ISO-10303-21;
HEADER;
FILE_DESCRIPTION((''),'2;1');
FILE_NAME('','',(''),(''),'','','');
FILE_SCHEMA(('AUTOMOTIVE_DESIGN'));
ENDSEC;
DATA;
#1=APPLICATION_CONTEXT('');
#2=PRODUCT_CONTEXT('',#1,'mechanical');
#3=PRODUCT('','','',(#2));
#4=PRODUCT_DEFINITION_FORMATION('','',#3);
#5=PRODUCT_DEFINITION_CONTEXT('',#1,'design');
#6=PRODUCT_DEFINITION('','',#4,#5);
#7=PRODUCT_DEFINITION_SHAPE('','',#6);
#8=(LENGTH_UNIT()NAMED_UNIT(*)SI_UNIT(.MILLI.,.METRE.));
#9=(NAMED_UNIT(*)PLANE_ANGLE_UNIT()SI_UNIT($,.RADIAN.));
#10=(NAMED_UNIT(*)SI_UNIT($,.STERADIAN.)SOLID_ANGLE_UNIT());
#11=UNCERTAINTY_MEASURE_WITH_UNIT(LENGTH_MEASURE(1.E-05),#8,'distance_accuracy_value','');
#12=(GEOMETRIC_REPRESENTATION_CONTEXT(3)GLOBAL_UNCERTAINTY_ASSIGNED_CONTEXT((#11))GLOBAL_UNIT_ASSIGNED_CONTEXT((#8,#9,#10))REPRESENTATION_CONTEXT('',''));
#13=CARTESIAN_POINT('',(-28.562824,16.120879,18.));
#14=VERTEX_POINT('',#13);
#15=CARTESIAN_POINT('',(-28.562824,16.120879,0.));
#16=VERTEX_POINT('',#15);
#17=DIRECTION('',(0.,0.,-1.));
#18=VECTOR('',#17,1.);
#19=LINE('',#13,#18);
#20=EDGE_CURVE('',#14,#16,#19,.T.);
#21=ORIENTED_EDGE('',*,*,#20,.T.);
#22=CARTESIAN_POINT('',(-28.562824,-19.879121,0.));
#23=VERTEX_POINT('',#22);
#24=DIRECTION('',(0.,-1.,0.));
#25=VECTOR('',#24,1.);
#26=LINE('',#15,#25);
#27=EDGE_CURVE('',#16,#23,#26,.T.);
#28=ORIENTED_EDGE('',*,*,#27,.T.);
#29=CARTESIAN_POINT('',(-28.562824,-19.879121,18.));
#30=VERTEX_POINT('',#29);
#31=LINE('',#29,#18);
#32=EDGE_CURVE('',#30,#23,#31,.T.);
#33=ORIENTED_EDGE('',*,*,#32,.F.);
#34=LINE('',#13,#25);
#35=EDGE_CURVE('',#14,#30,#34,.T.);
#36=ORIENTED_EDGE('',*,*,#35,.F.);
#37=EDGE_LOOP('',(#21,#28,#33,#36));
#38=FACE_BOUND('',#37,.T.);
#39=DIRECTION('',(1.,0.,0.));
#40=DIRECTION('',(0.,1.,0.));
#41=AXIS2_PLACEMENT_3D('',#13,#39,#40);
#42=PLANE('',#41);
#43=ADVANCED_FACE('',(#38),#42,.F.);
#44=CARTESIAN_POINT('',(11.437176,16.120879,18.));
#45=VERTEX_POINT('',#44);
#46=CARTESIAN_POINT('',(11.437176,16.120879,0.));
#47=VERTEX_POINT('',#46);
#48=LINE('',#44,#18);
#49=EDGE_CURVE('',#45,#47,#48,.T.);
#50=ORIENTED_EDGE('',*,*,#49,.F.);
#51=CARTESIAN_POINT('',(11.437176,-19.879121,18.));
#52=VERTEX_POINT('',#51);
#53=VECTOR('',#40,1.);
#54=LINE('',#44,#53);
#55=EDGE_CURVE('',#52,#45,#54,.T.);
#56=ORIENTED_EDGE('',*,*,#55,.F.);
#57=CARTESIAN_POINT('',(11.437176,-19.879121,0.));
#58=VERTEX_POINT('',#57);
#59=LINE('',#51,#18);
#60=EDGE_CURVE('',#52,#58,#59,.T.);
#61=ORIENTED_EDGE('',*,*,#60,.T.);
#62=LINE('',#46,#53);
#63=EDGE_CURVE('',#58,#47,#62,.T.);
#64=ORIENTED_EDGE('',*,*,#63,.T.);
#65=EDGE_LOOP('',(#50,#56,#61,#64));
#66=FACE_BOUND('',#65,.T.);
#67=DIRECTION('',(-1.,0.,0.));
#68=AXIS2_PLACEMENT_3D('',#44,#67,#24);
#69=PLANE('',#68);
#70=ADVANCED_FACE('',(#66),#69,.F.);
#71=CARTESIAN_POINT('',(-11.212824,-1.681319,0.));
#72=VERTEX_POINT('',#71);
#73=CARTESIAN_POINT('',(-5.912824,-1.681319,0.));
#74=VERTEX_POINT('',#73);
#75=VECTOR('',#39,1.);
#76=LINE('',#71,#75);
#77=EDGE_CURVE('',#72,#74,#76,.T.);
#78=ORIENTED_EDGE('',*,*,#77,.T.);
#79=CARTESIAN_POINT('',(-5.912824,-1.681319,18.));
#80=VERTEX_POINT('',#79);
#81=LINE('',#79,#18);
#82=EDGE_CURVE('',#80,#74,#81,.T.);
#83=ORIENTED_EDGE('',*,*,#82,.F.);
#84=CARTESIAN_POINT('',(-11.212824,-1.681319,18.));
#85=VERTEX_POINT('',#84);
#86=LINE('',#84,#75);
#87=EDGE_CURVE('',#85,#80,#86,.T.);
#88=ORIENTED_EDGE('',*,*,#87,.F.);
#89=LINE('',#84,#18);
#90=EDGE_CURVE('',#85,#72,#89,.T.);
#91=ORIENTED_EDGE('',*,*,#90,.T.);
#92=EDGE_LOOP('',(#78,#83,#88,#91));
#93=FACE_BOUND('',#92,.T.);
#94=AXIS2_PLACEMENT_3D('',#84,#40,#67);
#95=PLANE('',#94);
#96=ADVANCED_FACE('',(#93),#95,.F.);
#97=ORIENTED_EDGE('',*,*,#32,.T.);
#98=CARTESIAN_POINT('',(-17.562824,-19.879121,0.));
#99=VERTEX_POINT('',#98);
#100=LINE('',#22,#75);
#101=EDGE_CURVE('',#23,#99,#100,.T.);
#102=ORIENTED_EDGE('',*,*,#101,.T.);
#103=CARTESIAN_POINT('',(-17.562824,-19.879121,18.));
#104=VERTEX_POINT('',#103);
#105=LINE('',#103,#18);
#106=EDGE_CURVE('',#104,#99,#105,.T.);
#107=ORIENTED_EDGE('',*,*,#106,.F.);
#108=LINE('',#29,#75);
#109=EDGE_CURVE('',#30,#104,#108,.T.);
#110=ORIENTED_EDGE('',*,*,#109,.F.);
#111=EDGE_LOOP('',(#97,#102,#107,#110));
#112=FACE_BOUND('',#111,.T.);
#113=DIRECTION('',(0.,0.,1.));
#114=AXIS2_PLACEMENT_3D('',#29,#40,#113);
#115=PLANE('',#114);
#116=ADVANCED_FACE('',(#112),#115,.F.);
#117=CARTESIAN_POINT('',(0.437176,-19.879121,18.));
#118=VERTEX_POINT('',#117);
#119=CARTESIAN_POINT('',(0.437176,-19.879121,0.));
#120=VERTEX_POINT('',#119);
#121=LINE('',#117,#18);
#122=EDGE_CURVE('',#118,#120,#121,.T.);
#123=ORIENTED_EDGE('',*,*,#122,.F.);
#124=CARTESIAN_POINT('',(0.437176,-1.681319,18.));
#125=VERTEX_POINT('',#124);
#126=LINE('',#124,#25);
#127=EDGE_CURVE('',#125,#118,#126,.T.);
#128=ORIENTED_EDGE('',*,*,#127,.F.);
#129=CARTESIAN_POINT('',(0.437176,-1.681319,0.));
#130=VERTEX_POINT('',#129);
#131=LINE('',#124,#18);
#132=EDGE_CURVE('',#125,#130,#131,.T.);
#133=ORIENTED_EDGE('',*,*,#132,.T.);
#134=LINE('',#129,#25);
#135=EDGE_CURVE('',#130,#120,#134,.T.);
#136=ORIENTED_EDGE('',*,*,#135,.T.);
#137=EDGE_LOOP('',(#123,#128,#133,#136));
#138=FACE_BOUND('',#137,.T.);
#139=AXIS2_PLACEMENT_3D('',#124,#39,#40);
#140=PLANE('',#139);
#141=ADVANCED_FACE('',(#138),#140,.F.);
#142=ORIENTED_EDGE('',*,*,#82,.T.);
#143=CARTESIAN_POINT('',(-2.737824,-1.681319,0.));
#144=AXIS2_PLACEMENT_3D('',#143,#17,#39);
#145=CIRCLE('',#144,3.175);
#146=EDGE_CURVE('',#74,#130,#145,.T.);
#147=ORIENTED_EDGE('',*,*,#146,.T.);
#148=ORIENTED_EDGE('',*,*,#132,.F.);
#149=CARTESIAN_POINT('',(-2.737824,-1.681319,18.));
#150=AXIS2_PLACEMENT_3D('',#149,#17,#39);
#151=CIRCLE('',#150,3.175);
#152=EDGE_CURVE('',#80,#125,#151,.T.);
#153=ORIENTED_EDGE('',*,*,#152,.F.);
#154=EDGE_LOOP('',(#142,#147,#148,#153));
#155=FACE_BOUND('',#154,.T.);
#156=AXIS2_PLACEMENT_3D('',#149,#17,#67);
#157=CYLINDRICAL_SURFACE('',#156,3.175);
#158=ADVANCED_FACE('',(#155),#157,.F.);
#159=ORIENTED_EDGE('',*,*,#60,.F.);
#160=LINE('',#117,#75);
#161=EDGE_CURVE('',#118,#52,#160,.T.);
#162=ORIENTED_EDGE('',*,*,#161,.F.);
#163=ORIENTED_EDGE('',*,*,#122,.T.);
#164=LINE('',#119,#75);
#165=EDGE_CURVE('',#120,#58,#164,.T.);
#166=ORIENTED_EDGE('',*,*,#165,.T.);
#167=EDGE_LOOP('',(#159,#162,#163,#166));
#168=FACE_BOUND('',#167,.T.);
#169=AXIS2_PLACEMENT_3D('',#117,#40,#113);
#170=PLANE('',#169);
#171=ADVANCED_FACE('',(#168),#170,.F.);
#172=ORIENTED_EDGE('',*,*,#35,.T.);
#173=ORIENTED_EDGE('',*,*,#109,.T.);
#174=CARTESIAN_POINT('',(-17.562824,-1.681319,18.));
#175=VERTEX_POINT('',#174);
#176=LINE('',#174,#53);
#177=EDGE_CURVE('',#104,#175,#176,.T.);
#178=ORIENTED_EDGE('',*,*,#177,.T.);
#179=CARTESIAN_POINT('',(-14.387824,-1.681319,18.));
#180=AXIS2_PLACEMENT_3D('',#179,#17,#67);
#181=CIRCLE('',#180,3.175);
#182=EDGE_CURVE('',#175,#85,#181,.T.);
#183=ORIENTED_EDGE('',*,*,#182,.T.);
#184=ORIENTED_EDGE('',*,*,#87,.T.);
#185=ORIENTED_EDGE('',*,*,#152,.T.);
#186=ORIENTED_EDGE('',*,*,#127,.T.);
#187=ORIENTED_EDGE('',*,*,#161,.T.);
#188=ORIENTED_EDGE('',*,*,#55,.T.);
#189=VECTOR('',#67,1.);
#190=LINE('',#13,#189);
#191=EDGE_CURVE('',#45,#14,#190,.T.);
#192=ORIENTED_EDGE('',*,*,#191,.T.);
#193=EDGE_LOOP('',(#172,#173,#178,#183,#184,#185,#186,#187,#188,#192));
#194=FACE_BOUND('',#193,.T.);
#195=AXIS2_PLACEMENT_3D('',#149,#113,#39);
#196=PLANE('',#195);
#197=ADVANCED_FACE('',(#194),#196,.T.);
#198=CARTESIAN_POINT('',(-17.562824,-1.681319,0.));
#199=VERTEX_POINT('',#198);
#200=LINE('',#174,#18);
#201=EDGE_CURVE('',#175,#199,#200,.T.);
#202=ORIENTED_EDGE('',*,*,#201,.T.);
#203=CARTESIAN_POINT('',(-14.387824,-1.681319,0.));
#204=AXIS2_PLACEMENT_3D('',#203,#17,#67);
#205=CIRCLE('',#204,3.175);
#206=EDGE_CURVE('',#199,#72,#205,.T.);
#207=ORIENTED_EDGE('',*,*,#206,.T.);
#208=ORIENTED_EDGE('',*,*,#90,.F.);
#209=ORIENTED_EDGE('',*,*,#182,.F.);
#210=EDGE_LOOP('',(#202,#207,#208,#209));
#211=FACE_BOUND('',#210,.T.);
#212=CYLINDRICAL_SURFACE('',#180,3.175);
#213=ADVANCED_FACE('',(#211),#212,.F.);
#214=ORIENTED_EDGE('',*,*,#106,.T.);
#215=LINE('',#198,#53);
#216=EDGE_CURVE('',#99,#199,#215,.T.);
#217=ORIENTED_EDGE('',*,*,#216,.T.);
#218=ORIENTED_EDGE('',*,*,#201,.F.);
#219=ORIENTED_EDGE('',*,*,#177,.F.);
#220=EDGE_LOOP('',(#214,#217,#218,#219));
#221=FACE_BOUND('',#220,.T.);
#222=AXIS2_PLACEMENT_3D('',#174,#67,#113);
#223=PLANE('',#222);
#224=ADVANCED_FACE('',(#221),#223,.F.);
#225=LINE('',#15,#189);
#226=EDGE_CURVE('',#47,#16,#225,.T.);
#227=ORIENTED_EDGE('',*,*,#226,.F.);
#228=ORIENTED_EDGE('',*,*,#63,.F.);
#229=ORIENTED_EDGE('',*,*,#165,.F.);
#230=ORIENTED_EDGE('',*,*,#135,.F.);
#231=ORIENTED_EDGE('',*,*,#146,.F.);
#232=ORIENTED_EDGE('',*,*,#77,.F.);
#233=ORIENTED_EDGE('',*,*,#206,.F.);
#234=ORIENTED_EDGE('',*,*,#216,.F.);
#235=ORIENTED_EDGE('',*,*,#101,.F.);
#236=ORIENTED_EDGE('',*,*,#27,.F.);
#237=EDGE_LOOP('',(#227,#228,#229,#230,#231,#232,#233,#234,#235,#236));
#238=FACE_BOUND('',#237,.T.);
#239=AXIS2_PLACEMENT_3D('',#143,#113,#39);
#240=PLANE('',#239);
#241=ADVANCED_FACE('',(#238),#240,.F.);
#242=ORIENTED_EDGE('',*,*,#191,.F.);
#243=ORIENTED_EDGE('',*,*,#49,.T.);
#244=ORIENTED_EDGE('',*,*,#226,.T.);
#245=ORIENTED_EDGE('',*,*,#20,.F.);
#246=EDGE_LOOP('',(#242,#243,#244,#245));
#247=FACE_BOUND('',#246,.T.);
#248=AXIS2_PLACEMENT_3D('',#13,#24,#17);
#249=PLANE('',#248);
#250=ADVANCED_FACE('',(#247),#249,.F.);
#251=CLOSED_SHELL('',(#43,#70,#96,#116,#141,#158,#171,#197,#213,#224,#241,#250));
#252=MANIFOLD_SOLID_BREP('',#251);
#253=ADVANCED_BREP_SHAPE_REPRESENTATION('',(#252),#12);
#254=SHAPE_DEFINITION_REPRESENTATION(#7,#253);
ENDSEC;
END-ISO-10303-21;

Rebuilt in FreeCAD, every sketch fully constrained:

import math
import FreeCAD as App
import Part
import Sketcher
from FreeCAD import Vector
Q = App.Units.Quantity

doc = App.newDocument("Part")
body = doc.addObject("PartDesign::Body", "Body")

# Sketch on XY plane
sketch1 = doc.addObject("Sketcher::SketchObject", "Sketch")
body.addObject(sketch1)
sketch1.AttachmentSupport = (doc.XY_Plane, [""])
sketch1.MapMode = "FlatFace"
sketch1.addGeometry([
    Part.LineSegment(Vector(0.4, -19.9, 0), Vector(11.4, -19.9, 0)),  # 0
    Part.LineSegment(Vector(11.4, -19.9, 0), Vector(11.4, 16.1, 0)),  # 1
    Part.LineSegment(Vector(11.4, 16.1, 0), Vector(-28.6, 16.1, 0)),  # 2
    Part.LineSegment(Vector(-28.6, 16.1, 0), Vector(-28.6, -19.9, 0)),  # 3
    Part.LineSegment(Vector(-28.6, -19.9, 0), Vector(-17.6, -19.9, 0)),  # 4
    Part.LineSegment(Vector(-17.6, -19.9, 0), Vector(-17.6, -1.7, 0)),  # 5
    Part.ArcOfCircle(Part.Circle(Vector(-14.4, -1.7, 0), Vector(0, 0, 1), 3.2), math.radians(0), math.radians(180)),  # 6
    Part.LineSegment(Vector(-11.2, -1.7, 0), Vector(-5.9, -1.7, 0)),  # 7
    Part.ArcOfCircle(Part.Circle(Vector(-2.7, -1.7, 0), Vector(0, 0, 1), 3.2), math.radians(0), math.radians(180)),  # 8
    Part.LineSegment(Vector(0.4, -1.7, 0), Vector(0.4, -19.9, 0)),  # 9
], False)
sketch1.addConstraint([
    Sketcher.Constraint("Coincident", 0, 2, 1, 1),
    Sketcher.Constraint("Coincident", 1, 2, 2, 1),
    Sketcher.Constraint("Coincident", 2, 2, 3, 1),
    Sketcher.Constraint("Coincident", 3, 2, 4, 1),
    Sketcher.Constraint("Coincident", 4, 2, 5, 1),
    Sketcher.Constraint("Tangent", 5, 2, 6, 2),
    Sketcher.Constraint("Coincident", 6, 1, 7, 1),
    Sketcher.Constraint("Coincident", 7, 2, 8, 2),
    Sketcher.Constraint("Tangent", 8, 1, 9, 1),
    Sketcher.Constraint("Coincident", 9, 2, 0, 1),
    Sketcher.Constraint("Horizontal", 0),
    Sketcher.Constraint("Vertical", 1),
    Sketcher.Constraint("Horizontal", 2),
    Sketcher.Constraint("Vertical", 3),
    Sketcher.Constraint("Horizontal", 4),
    Sketcher.Constraint("Vertical", 5),
    Sketcher.Constraint("Horizontal", 7),
    Sketcher.Constraint("Vertical", 9),
    Sketcher.Constraint("Equal", 6, 8),
    Sketcher.Constraint("Horizontal", 6, 3, 8, 3),
    Sketcher.Constraint("Horizontal", 0, 2, 3, 2),
    Sketcher.Constraint("Horizontal", 5, 2, 6, 1),
    Sketcher.Constraint("Equal", 0, 4),
    Sketcher.Constraint("DistanceX", 0, 1, 0, 2, Q("11 mm")),
    Sketcher.Constraint("DistanceX", 2, 2, 2, 1, Q("40 mm")),
    Sketcher.Constraint("DistanceY", 1, 1, 1, 2, Q("36 mm")),
    Sketcher.Constraint("DistanceX", 7, 1, 7, 2, Q("5.3 mm")),
    Sketcher.Constraint("DistanceY", 5, 1, 5, 2, Q("18.197802 mm")),
    Sketcher.Constraint("DistanceY", 6, 3, -1, 1, Q("1.681319 mm")),
    Sketcher.Constraint("DistanceX", 6, 3, -1, 1, Q("14.387824 mm")),
])
pad1 = doc.addObject("PartDesign::Pad", "Pad")
body.addObject(pad1)
pad1.Profile = sketch1
pad1.Length = 18

doc.recompute()
